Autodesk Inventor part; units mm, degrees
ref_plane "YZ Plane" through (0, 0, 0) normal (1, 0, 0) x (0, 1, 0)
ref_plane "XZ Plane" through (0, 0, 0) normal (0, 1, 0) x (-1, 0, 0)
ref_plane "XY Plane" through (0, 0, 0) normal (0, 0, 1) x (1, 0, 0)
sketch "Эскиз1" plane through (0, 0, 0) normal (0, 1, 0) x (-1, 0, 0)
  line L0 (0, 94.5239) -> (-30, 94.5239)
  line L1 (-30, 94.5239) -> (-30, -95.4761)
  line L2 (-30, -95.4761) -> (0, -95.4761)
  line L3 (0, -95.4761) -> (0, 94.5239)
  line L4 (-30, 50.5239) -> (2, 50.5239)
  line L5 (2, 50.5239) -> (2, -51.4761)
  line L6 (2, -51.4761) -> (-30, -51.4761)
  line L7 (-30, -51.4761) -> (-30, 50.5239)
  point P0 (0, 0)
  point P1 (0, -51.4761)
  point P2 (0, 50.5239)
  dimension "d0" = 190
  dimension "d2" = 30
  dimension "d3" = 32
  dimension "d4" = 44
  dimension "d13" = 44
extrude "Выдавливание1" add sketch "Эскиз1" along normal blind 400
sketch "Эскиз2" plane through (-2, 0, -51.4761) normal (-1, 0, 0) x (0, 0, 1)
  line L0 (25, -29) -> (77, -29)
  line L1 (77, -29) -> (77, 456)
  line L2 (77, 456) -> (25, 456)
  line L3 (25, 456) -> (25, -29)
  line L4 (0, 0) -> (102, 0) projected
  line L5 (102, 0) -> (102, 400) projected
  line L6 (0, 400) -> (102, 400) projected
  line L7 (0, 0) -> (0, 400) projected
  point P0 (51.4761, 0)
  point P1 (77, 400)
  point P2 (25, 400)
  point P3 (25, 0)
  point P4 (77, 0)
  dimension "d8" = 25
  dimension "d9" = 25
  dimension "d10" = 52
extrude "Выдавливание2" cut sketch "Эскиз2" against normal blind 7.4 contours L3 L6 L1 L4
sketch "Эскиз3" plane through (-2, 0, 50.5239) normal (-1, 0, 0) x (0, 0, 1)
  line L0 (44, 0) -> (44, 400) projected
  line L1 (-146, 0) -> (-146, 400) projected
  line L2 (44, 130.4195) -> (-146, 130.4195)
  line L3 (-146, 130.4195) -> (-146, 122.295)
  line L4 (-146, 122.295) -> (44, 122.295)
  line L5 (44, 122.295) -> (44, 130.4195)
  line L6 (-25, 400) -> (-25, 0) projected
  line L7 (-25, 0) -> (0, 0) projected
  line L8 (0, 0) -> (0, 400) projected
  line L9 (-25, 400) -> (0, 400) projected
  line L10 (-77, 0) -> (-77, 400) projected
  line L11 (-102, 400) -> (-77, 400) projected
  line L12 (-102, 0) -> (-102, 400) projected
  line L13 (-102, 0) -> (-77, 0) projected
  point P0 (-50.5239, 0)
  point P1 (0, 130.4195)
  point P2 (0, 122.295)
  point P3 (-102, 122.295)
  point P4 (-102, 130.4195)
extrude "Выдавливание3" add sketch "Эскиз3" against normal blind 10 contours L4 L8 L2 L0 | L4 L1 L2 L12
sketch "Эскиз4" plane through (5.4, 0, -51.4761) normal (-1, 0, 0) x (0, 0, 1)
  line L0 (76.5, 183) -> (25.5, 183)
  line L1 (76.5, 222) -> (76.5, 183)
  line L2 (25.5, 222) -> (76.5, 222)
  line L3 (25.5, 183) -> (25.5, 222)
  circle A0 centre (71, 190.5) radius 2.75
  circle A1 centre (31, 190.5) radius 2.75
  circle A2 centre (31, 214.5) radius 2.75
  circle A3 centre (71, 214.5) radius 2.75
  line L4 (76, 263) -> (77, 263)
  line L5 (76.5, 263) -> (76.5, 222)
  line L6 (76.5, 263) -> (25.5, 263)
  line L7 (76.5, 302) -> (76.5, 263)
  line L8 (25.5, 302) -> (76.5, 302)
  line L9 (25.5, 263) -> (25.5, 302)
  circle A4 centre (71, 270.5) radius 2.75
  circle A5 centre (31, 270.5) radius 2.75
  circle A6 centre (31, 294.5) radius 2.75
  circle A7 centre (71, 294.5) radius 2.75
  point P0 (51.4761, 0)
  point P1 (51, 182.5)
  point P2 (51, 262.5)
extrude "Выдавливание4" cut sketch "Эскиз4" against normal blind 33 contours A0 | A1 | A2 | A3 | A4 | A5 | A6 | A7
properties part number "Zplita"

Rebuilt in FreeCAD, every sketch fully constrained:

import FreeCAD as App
import Part
import Sketcher

V = App.Vector


def add_polygon(sketch, points):
    """Adds a closed chain of lines whose ends are joined by coincident constraints."""
    first, n = sketch.GeometryCount, len(points)
    for a, b in zip(points, points[1:] + points[:1]):
        sketch.addGeometry(Part.LineSegment(App.Vector(*a, 0), App.Vector(*b, 0)), False)
    for i in range(n):
        sketch.addConstraint(Sketcher.Constraint("Coincident", first + i, 2, first + (i + 1) % n, 1))

doc = App.newDocument("Part")
params = doc.addObject("Spreadsheet::Sheet", "Params")
for row, (alias, value) in enumerate([
    ("sketch1_width", "30 mm"),
    ("sketch1_height", "44 mm"),
    ("sketch1_height2", "190 mm"),
    ("pad1_length", "400 mm"),
    ("sketch2_height", "52 mm"),
    ("sketch2_width", "400 mm"),
    ("pocket1_length", "7.4 mm"),
    ("sketch3_height", "44 mm"),
    ("pad2_length", "10 mm"),
    ("sketch4_diameter", "5.5 mm"),
    ("pocket2_length", "33 mm"),
], start=1):
    params.set(f"A{row}", alias)
    params.set(f"B{row}", "=" + value)
    params.setAlias(f"B{row}", alias)

body = doc.addObject("PartDesign::Body", "Body")

sketch1 = body.newObject("Sketcher::SketchObject", "Sketch")
sketch1.AttachmentSupport = (doc.getObject("XZ_Plane"), [""])
sketch1.MapMode = "FlatFace"
add_polygon(sketch1, [(0, 50.5), (0, 94.5), (30, 94.5), (30, -95.5), (0, -95.5), (0, -51.5), (-2, -51.5), (-2, 50.5)])
sketch1.addConstraint(Sketcher.Constraint("Vertical", 0))
sketch1.addConstraint(Sketcher.Constraint("Horizontal", 1))
sketch1.addConstraint(Sketcher.Constraint("Vertical", 2))
sketch1.addConstraint(Sketcher.Constraint("Horizontal", 3))
sketch1.addConstraint(Sketcher.Constraint("Vertical", 4))
sketch1.addConstraint(Sketcher.Constraint("Horizontal", 5))
sketch1.addConstraint(Sketcher.Constraint("Vertical", 6))
sketch1.addConstraint(Sketcher.Constraint("Horizontal", 7))
sketch1.addConstraint(Sketcher.Constraint("PointOnObject", 0, 2, -2))
sketch1.addConstraint(Sketcher.Constraint("PointOnObject", 3, 2, -2))
sketch1.addConstraint(Sketcher.Constraint("Equal", 0, 4))
sketch1.addConstraint(Sketcher.Constraint("DistanceX", 1, 1, 1, 2, 30.0))
sketch1.addConstraint(Sketcher.Constraint("DistanceY", 0, 1, 0, 2, 44.0))
sketch1.addConstraint(Sketcher.Constraint("DistanceY", 2, 2, 2, 1, 190.0))
sketch1.addConstraint(Sketcher.Constraint("DistanceX", 5, 2, 2, 2, 32.0))
sketch1.addConstraint(Sketcher.Constraint("DistanceY", -1, 1, 0, 2, 94.524))
sketch1.setExpression("Constraints[19]", "Params.sketch1_width")
sketch1.setExpression("Constraints[20]", "Params.sketch1_height")
sketch1.setExpression("Constraints[21]", "Params.sketch1_height2")
pad1 = body.newObject("PartDesign::Pad", "Pad")
pad1.Profile = sketch1
pad1.setExpression("Length", "Params.pad1_length")
pad1.Reversed = True

sketch2 = body.newObject("Sketcher::SketchObject", "Sketch001")
sketch2.AttachmentSupport = (doc.getObject("YZ_Plane"), [""])
sketch2.MapMode = "FlatFace"
sketch2.AttachmentOffset = App.Placement(V(0, 0, -2), App.Rotation())
add_polygon(sketch2, [(400, -26), (0, -26), (0, 26), (400, 26)])
sketch2.addConstraint(Sketcher.Constraint("Horizontal", 0))
sketch2.addConstraint(Sketcher.Constraint("Vertical", 1))
sketch2.addConstraint(Sketcher.Constraint("Horizontal", 2))
sketch2.addConstraint(Sketcher.Constraint("Vertical", 3))
sketch2.addConstraint(Sketcher.Constraint("PointOnObject", 0, 2, -2))
sketch2.addConstraint(Sketcher.Constraint("DistanceY", 1, 1, 1, 2, 52.0))
sketch2.addConstraint(Sketcher.Constraint("DistanceX", 0, 2, 0, 1, 400.0))
sketch2.addConstraint(Sketcher.Constraint("DistanceY", 0, 2, -1, 1, 26.476))
sketch2.setExpression("Constraints[9]", "Params.sketch2_height")
sketch2.setExpression("Constraints[10]", "Params.sketch2_width")
pocket1 = body.newObject("PartDesign::Pocket", "Pocket")
pocket1.Profile = sketch2
pocket1.setExpression("Length", "Params.pocket1_length")
pocket1.Reversed = True

sketch3 = body.newObject("Sketcher::SketchObject", "Sketch002")
sketch3.AttachmentSupport = (doc.getObject("YZ_Plane"), [""])
sketch3.MapMode = "FlatFace"
sketch3.AttachmentOffset = App.Placement(V(0, 0, -2), App.Rotation())
add_polygon(sketch3, [(122, 51), (122, 95), (130, 95), (130, 51)])
add_polygon(sketch3, [(122, -95), (122, -51), (130, -51), (130, -95)])
sketch3.addConstraint(Sketcher.Constraint("Vertical", 0))
sketch3.addConstraint(Sketcher.Constraint("Horizontal", 1))
sketch3.addConstraint(Sketcher.Constraint("Vertical", 2))
sketch3.addConstraint(Sketcher.Constraint("Horizontal", 3))
sketch3.addConstraint(Sketcher.Constraint("Vertical", 4))
sketch3.addConstraint(Sketcher.Constraint("Horizontal", 5))
sketch3.addConstraint(Sketcher.Constraint("Vertical", 6))
sketch3.addConstraint(Sketcher.Constraint("Horizontal", 7))
sketch3.addConstraint(Sketcher.Constraint("Vertical", 3, 2, 4, 2))
sketch3.addConstraint(Sketcher.Constraint("Vertical", 2, 2, 5, 2))
sketch3.addConstraint(Sketcher.Constraint("Equal", 2, 4))
sketch3.addConstraint(Sketcher.Constraint("DistanceY", 0, 1, 0, 2, 44.0))
sketch3.addConstraint(Sketcher.Constraint("DistanceY", 4, 2, 3, 2, 102.0))
sketch3.addConstraint(Sketcher.Constraint("DistanceX", 1, 1, 1, 2, 8.1245))
sketch3.addConstraint(Sketcher.Constraint("DistanceX", -1, 1, 0, 2, 122.295))
sketch3.addConstraint(Sketcher.Constraint("DistanceY", -1, 1, 0, 2, 94.524))
sketch3.setExpression("Constraints[19]", "Params.sketch3_height")
pad2 = body.newObject("PartDesign::Pad", "Pad001")
pad2.Profile = sketch3
pad2.setExpression("Length", "Params.pad2_length")

sketch4 = body.newObject("Sketcher::SketchObject", "Sketch003")
sketch4.AttachmentSupport = (doc.getObject("YZ_Plane"), [""])
sketch4.MapMode = "FlatFace"
sketch4.AttachmentOffset = App.Placement(V(0, 0, 5.4), App.Rotation())
sketch4.addGeometry(Part.Circle(V(190.5, 19.5, 0), V(0, 0, 1), 2.8), False)
sketch4.addGeometry(Part.Circle(V(190.5, -20.5, 0), V(0, 0, 1), 2.8), False)
sketch4.addGeometry(Part.Circle(V(214.5, -20.5, 0), V(0, 0, 1), 2.8), False)
sketch4.addGeometry(Part.Circle(V(214.5, 19.5, 0), V(0, 0, 1), 2.8), False)
sketch4.addGeometry(Part.Circle(V(270.5, 19.5, 0), V(0, 0, 1), 2.8), False)
sketch4.addGeometry(Part.Circle(V(270.5, -20.5, 0), V(0, 0, 1), 2.8), False)
sketch4.addGeometry(Part.Circle(V(294.5, -20.5, 0), V(0, 0, 1), 2.8), False)
sketch4.addGeometry(Part.Circle(V(294.5, 19.5, 0), V(0, 0, 1), 2.8), False)
sketch4.addConstraint(Sketcher.Constraint("Equal", 0, 1))
sketch4.addConstraint(Sketcher.Constraint("Equal", 1, 2))
sketch4.addConstraint(Sketcher.Constraint("Equal", 2, 3))
sketch4.addConstraint(Sketcher.Constraint("Equal", 3, 4))
sketch4.addConstraint(Sketcher.Constraint("Equal", 4, 5))
sketch4.addConstraint(Sketcher.Constraint("Equal", 5, 6))
sketch4.addConstraint(Sketcher.Constraint("Equal", 6, 7))
sketch4.addConstraint(Sketcher.Constraint("Horizontal", 1, 3, 2, 3))
sketch4.addConstraint(Sketcher.Constraint("Horizontal", 0, 3, 3, 3))
sketch4.addConstraint(Sketcher.Constraint("Horizontal", 3, 3, 4, 3))
sketch4.addConstraint(Sketcher.Constraint("Horizontal", 2, 3, 5, 3))
sketch4.addConstraint(Sketcher.Constraint("Horizontal", 5, 3, 6, 3))
sketch4.addConstraint(Sketcher.Constraint("Horizontal", 4, 3, 7, 3))
sketch4.addConstraint(Sketcher.Constraint("Vertical", 0, 3, 1, 3))
sketch4.addConstraint(Sketcher.Constraint("Vertical", 2, 3, 3, 3))
sketch4.addConstraint(Sketcher.Constraint("Vertical", 4, 3, 5, 3))
sketch4.addConstraint(Sketcher.Constraint("Vertical", 6, 3, 7, 3))
sketch4.addConstraint(Sketcher.Constraint("Diameter", 0, 5.5))
sketch4.addConstraint(Sketcher.Constraint("DistanceY", 1, 3, 0, 3, 40.0))
sketch4.addConstraint(Sketcher.Constraint("DistanceX", 1, 3, 2, 3, 24.0))
sketch4.addConstraint(Sketcher.Constraint("DistanceX", 3, 3, 4, 3, 56.0))
sketch4.addConstraint(Sketcher.Constraint("DistanceX", 5, 3, 6, 3, 24.0))
sketch4.addConstraint(Sketcher.Constraint("DistanceX", -1, 1, 0, 3, 190.5))
sketch4.addConstraint(Sketcher.Constraint("DistanceY", -1, 1, 0, 3, 19.524))
sketch4.setExpression("Constraints[17]", "Params.sketch4_diameter")
pocket2 = body.newObject("PartDesign::Pocket", "Pocket001")
pocket2.Profile = sketch4
pocket2.setExpression("Length", "Params.pocket2_length")
pocket2.Reversed = True

doc.recompute()
